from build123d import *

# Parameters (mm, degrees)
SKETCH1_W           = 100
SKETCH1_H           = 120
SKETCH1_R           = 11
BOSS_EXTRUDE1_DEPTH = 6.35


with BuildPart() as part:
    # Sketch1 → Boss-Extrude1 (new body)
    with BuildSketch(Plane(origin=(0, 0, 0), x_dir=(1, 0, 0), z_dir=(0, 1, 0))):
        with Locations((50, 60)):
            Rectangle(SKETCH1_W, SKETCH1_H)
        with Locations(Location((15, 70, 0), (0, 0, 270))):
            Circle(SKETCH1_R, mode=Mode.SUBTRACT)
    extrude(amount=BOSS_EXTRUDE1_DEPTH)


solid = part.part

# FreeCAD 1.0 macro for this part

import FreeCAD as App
import Part
import Sketcher
from FreeCAD import Vector
Q = App.Units.Quantity


def add_polygon(sketch, points):
    """Adds a closed chain of lines whose ends are joined by coincident constraints."""
    first, n = sketch.GeometryCount, len(points)
    for a, b in zip(points, points[1:] + points[:1]):
        sketch.addGeometry(Part.LineSegment(App.Vector(*a, 0), App.Vector(*b, 0)), False)
    for i in range(n):
        sketch.addConstraint(Sketcher.Constraint("Coincident", first + i, 2, first + (i + 1) % n, 1))

doc = App.newDocument("Part")
body = doc.addObject("PartDesign::Body", "Body")

# Sketch on XZ plane
sketch1 = body.newObject("Sketcher::SketchObject", "Sketch")
sketch1.AttachmentSupport = (doc.getObject("XZ_Plane"), [""])
sketch1.MapMode = "FlatFace"
add_polygon(sketch1, [(0, -120), (0, 0), (100, 0), (100, -120)])  # lines 0-3
sketch1.addGeometry(Part.Circle(Vector(15, -70, 0), Vector(0, 0, 1), 11), False)  # 4
sketch1.addConstraint(Sketcher.Constraint("Vertical", 0))
sketch1.addConstraint(Sketcher.Constraint("Horizontal", 1))
sketch1.addConstraint(Sketcher.Constraint("Vertical", 2))
sketch1.addConstraint(Sketcher.Constraint("Horizontal", 3))
sketch1.addConstraint(Sketcher.Constraint("Coincident", 0, 2, -1, 1))
sketch1.addConstraint(Sketcher.Constraint("Diameter", 4, Q("22 mm")))
sketch1.addConstraint(Sketcher.Constraint("DistanceX", 1, 1, 1, 2, Q("100 mm")))
sketch1.addConstraint(Sketcher.Constraint("DistanceY", 0, 1, 0, 2, Q("120 mm")))
sketch1.addConstraint(Sketcher.Constraint("DistanceX", -1, 1, 4, 3, Q("15 mm")))
sketch1.addConstraint(Sketcher.Constraint("DistanceY", 4, 3, -1, 1, Q("70 mm")))
pad1 = body.newObject("PartDesign::Pad", "Pad")
pad1.Profile = sketch1
pad1.Length = 6.35
pad1.Reversed = True

doc.recompute()
